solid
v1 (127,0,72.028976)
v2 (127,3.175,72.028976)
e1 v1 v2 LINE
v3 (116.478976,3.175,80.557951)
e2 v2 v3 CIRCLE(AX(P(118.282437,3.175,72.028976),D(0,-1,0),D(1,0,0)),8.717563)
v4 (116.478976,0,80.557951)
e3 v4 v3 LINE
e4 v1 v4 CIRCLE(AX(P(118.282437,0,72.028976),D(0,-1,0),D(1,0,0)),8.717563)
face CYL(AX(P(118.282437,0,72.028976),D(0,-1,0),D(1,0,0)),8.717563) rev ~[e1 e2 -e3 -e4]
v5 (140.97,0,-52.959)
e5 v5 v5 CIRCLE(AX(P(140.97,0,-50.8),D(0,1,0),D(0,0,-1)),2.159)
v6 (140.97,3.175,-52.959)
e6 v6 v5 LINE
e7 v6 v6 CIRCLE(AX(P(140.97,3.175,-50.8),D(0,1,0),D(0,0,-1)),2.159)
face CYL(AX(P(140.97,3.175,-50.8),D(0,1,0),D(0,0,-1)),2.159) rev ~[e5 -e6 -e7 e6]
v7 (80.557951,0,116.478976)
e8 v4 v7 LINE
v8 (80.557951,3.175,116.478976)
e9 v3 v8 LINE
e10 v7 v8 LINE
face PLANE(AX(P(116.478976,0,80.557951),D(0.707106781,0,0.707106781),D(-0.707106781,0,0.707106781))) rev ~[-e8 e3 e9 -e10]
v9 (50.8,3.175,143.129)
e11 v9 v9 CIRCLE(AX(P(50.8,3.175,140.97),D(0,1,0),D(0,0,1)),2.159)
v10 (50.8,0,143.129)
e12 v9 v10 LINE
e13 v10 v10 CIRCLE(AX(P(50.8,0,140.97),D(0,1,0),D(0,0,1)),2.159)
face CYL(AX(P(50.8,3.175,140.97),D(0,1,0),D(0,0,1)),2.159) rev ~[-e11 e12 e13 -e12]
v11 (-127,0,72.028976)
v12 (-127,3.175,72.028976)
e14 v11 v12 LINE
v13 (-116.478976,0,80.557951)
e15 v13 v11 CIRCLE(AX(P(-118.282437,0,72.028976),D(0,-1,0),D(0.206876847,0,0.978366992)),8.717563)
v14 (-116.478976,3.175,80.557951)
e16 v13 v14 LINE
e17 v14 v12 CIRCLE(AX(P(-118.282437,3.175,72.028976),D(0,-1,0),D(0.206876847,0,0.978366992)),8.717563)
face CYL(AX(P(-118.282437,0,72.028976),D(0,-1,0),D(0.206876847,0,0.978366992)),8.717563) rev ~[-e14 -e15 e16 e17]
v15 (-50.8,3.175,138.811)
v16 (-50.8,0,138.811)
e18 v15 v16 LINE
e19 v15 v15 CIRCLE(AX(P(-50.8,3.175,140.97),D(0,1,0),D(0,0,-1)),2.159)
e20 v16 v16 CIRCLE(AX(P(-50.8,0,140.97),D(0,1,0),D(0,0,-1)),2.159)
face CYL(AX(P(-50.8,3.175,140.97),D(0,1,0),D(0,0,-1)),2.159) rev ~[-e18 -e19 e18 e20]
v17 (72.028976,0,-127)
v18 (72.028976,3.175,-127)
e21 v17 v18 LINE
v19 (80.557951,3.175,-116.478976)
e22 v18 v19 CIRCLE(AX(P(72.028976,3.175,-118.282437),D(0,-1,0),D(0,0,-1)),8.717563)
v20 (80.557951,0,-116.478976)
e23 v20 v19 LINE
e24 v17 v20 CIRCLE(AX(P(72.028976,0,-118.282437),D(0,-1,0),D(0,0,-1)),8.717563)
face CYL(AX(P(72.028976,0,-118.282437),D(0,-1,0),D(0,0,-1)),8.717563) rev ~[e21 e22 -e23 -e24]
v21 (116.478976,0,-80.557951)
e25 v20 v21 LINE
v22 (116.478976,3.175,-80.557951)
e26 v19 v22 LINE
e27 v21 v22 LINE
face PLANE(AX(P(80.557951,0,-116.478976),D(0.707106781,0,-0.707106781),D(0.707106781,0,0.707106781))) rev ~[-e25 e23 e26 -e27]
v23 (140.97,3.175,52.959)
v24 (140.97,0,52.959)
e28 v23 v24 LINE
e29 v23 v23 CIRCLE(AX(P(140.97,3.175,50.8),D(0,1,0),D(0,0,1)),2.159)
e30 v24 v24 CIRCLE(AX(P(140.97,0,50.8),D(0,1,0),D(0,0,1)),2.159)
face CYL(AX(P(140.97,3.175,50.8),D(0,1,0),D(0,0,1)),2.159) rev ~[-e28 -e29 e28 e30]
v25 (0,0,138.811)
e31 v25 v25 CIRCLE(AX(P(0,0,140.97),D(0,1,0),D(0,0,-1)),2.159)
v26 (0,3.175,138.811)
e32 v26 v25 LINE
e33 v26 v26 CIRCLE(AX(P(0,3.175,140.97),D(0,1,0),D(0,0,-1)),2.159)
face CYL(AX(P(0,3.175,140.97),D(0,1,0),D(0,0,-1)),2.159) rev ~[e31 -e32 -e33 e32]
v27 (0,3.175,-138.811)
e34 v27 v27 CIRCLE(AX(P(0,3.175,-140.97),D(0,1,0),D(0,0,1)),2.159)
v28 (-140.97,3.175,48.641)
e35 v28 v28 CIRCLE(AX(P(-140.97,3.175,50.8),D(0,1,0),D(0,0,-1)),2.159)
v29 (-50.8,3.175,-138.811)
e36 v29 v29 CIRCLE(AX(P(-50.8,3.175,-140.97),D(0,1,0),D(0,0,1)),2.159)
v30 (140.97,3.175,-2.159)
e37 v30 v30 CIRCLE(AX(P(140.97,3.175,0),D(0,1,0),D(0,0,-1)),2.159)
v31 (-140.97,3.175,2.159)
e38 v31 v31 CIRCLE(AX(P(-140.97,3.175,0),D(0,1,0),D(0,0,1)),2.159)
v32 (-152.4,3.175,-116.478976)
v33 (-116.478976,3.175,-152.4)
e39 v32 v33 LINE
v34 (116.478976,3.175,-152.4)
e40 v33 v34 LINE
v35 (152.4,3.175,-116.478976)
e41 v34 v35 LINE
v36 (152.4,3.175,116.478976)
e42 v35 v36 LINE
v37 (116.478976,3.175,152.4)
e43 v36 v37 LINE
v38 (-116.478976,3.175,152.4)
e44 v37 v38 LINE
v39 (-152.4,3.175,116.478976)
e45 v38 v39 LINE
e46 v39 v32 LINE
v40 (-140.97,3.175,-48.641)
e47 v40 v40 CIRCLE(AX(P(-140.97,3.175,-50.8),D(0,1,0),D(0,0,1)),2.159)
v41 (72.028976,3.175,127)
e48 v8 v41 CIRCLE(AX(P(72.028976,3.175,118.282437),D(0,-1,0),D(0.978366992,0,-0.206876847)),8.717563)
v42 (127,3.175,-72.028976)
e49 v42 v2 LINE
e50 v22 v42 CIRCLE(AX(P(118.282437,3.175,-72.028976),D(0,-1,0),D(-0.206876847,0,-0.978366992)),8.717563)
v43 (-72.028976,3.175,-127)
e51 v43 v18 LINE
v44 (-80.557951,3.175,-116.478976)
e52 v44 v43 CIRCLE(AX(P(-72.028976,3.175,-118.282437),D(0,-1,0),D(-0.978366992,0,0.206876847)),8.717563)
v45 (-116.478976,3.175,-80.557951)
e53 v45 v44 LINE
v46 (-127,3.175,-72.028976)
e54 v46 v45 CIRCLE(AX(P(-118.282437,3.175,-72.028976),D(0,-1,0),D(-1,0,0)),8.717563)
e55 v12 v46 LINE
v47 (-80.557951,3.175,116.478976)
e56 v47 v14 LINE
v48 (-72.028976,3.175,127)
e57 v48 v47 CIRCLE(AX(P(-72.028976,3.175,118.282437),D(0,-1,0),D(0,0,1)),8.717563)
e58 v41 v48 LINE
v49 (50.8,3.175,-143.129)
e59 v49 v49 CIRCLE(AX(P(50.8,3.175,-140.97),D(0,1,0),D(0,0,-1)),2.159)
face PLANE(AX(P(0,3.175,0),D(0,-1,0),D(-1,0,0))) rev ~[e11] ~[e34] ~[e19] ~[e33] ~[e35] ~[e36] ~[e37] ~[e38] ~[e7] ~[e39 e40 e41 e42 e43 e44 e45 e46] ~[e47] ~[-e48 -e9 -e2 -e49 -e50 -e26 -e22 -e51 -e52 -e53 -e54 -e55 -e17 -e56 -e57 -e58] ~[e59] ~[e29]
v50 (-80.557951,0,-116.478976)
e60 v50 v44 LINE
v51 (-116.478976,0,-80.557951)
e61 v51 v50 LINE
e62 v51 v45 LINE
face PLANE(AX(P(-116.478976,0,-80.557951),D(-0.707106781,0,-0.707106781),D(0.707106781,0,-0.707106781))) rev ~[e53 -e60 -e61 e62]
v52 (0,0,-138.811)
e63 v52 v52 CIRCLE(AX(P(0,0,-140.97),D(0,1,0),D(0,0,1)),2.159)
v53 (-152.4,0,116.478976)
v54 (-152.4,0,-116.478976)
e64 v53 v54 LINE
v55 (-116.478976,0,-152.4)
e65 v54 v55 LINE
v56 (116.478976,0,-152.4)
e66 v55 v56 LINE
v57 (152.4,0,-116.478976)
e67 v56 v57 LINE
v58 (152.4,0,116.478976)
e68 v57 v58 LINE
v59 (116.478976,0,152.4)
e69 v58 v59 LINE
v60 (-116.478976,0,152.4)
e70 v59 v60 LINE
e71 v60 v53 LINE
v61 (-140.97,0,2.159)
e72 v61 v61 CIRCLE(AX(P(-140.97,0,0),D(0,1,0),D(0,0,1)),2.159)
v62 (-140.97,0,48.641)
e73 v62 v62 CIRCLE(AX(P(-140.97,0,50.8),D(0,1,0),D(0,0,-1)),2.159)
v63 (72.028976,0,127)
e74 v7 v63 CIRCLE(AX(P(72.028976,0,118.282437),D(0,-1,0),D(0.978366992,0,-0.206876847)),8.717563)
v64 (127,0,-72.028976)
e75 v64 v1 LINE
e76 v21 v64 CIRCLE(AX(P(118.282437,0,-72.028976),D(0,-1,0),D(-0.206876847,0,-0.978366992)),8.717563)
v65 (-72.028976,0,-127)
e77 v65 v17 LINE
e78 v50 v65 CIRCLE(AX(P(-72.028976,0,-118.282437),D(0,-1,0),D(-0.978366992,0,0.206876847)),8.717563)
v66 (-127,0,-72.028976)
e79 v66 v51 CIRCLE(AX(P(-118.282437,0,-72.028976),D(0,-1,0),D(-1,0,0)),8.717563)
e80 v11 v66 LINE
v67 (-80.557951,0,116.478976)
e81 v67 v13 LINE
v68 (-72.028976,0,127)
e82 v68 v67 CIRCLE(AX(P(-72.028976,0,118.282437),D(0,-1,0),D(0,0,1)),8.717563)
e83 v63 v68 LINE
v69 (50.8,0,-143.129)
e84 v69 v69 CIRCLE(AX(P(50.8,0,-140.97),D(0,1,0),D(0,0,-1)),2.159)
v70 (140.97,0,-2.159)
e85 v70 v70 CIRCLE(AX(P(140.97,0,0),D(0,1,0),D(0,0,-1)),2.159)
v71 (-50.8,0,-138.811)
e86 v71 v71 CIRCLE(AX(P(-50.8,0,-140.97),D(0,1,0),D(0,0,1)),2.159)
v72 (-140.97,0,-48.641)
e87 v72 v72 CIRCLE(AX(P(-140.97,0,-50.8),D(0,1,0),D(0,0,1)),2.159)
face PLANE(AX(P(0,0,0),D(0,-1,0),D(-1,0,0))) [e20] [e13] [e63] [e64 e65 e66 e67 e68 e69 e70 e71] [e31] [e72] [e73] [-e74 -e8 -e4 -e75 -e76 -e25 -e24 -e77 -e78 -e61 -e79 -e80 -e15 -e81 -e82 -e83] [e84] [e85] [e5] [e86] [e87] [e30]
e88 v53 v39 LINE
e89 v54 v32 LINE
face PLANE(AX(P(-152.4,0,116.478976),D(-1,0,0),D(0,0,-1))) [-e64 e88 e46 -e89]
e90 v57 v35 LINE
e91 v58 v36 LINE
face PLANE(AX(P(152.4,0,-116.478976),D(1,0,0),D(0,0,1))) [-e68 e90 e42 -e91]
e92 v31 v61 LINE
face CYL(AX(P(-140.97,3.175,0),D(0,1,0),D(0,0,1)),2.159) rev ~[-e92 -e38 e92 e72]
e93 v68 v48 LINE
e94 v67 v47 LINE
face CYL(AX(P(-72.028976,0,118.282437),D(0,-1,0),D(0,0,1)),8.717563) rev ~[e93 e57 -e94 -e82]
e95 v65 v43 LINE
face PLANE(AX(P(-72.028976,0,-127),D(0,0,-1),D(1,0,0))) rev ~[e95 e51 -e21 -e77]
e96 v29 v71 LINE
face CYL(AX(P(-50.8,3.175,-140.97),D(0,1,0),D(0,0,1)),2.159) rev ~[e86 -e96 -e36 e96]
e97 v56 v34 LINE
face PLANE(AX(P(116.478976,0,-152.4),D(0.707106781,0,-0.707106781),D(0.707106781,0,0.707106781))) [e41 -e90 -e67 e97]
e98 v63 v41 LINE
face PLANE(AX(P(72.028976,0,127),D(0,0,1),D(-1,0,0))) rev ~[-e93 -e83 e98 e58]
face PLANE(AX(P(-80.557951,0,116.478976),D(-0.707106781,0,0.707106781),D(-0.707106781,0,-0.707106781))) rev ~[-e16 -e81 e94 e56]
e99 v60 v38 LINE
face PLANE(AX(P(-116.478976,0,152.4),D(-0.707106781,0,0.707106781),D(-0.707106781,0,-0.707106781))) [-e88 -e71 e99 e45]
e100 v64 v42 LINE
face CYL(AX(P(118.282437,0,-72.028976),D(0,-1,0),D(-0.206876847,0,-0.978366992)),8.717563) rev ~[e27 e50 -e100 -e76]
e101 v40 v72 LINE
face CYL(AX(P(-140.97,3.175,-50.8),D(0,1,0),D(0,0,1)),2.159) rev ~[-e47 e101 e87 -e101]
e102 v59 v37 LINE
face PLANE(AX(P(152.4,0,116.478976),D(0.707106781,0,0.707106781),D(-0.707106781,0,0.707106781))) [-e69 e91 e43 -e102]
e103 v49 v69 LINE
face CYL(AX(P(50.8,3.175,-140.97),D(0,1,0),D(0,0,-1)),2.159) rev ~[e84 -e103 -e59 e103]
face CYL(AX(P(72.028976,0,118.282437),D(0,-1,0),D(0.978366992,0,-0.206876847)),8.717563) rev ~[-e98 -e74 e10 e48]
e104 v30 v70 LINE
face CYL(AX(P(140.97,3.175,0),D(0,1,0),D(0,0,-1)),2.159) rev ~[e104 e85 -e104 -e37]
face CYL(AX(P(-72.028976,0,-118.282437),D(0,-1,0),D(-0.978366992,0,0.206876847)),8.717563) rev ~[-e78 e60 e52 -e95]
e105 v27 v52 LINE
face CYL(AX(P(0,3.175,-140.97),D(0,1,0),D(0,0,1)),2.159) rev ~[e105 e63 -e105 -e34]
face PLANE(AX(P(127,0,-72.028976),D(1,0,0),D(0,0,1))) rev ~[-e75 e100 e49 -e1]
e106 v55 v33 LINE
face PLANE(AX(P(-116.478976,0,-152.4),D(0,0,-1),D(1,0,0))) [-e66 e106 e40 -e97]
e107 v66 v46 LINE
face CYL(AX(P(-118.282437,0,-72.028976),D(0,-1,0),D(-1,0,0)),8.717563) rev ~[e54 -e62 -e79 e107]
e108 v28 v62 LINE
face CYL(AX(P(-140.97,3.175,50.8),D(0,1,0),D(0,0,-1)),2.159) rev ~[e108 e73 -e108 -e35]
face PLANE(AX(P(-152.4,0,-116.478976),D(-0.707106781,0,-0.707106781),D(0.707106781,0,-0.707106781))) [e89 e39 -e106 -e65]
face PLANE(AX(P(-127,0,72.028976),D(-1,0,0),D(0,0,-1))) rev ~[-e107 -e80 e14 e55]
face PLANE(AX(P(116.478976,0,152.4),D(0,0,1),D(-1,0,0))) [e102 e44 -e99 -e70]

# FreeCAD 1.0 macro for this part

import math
import FreeCAD as App
import Part
import Sketcher
Q = App.Units.Quantity


def add_polygon(sketch, points):
    """Adds a closed chain of lines whose ends are joined by coincident constraints."""
    first, n = sketch.GeometryCount, len(points)
    for a, b in zip(points, points[1:] + points[:1]):
        sketch.addGeometry(Part.LineSegment(App.Vector(*a, 0), App.Vector(*b, 0)), False)
    for i in range(n):
        sketch.addConstraint(Sketcher.Constraint("Coincident", first + i, 2, first + (i + 1) % n, 1))

doc = App.newDocument("Part")
params = doc.addObject("Spreadsheet::Sheet", "Params")
for row, (alias, value) in enumerate([
    ("sketch1_length", "2 in"),
    ("pad1_length", "0.125 in"),
    ("sketch2_diameter", "0.17 in"),
], start=1):
    params.set(f"A{row}", alias)
    params.set(f"B{row}", "=" + value)
    params.setAlias(f"B{row}", alias)

body = doc.addObject("PartDesign::Body", "Body")

sketch1 = body.newObject("Sketcher::SketchObject", "Sketch")
sketch1.AttachmentSupport = (doc.getObject("XZ_Plane"), [""])
sketch1.MapMode = "FlatFace"
add_polygon(sketch1, [(-116, -152), (-152, -116), (-152, 116), (-116, 152), (116, 152), (152, 116), (152, -116), (116, -152)])
sketch1.addGeometry(Part.LineSegment(App.Vector(-116, -81, 0), App.Vector(-81, -116, 0)), False)
sketch1.addGeometry(Part.ArcOfCircle(Part.Circle(App.Vector(-72, -118, 0), App.Vector(0, 0, 1), 9), math.radians(168), math.radians(270)), False)
sketch1.addGeometry(Part.LineSegment(App.Vector(-72, -127, 0), App.Vector(72, -127, 0)), False)
sketch1.addGeometry(Part.ArcOfCircle(Part.Circle(App.Vector(72, -118, 0), App.Vector(0, 0, 1), 9), math.radians(-90), math.radians(12)), False)
sketch1.addGeometry(Part.LineSegment(App.Vector(81, -116, 0), App.Vector(116, -81, 0)), False)
sketch1.addGeometry(Part.ArcOfCircle(Part.Circle(App.Vector(118, -72, 0), App.Vector(0, 0, 1), 9), math.radians(-102), math.radians(0)), False)
sketch1.addGeometry(Part.LineSegment(App.Vector(127, -72, 0), App.Vector(127, 72, 0)), False)
sketch1.addGeometry(Part.ArcOfCircle(Part.Circle(App.Vector(118, 72, 0), App.Vector(0, 0, 1), 9), math.radians(0), math.radians(102)), False)
sketch1.addGeometry(Part.LineSegment(App.Vector(116, 81, 0), App.Vector(81, 116, 0)), False)
sketch1.addGeometry(Part.ArcOfCircle(Part.Circle(App.Vector(72, 118, 0), App.Vector(0, 0, 1), 9), math.radians(-12), math.radians(90)), False)
sketch1.addGeometry(Part.LineSegment(App.Vector(72, 127, 0), App.Vector(-72, 127, 0)), False)
sketch1.addGeometry(Part.ArcOfCircle(Part.Circle(App.Vector(-72, 118, 0), App.Vector(0, 0, 1), 9), math.radians(90), math.radians(192)), False)
sketch1.addGeometry(Part.LineSegment(App.Vector(-81, 116, 0), App.Vector(-116, 81, 0)), False)
sketch1.addGeometry(Part.ArcOfCircle(Part.Circle(App.Vector(-118, 72, 0), App.Vector(0, 0, 1), 9), math.radians(78), math.radians(180)), False)
sketch1.addGeometry(Part.LineSegment(App.Vector(-127, 72, 0), App.Vector(-127, -72, 0)), False)
sketch1.addGeometry(Part.ArcOfCircle(Part.Circle(App.Vector(-118, -72, 0), App.Vector(0, 0, 1), 9), math.radians(180), math.radians(282)), False)
sketch1.addConstraint(Sketcher.Constraint("Coincident", 8, 2, 9, 1))
sketch1.addConstraint(Sketcher.Constraint("Tangent", 9, 2, 10, 1))
sketch1.addConstraint(Sketcher.Constraint("Tangent", 10, 2, 11, 1))
sketch1.addConstraint(Sketcher.Constraint("Coincident", 11, 2, 12, 1))
sketch1.addConstraint(Sketcher.Constraint("Coincident", 12, 2, 13, 1))
sketch1.addConstraint(Sketcher.Constraint("Tangent", 13, 2, 14, 1))
sketch1.addConstraint(Sketcher.Constraint("Tangent", 14, 2, 15, 1))
sketch1.addConstraint(Sketcher.Constraint("Coincident", 15, 2, 16, 1))
sketch1.addConstraint(Sketcher.Constraint("Coincident", 16, 2, 17, 1))
sketch1.addConstraint(Sketcher.Constraint("Tangent", 17, 2, 18, 1))
sketch1.addConstraint(Sketcher.Constraint("Tangent", 18, 2, 19, 1))
sketch1.addConstraint(Sketcher.Constraint("Coincident", 19, 2, 20, 1))
sketch1.addConstraint(Sketcher.Constraint("Coincident", 20, 2, 21, 1))
sketch1.addConstraint(Sketcher.Constraint("Tangent", 21, 2, 22, 1))
sketch1.addConstraint(Sketcher.Constraint("Tangent", 22, 2, 23, 1))
sketch1.addConstraint(Sketcher.Constraint("Coincident", 23, 2, 8, 1))
sketch1.addConstraint(Sketcher.Constraint("Vertical", 1))
sketch1.addConstraint(Sketcher.Constraint("Horizontal", 3))
sketch1.addConstraint(Sketcher.Constraint("Vertical", 5))
sketch1.addConstraint(Sketcher.Constraint("Horizontal", 7))
sketch1.addConstraint(Sketcher.Constraint("Horizontal", 10))
sketch1.addConstraint(Sketcher.Constraint("Vertical", 14))
sketch1.addConstraint(Sketcher.Constraint("Horizontal", 18))
sketch1.addConstraint(Sketcher.Constraint("Vertical", 22))
sketch1.addConstraint(Sketcher.Constraint("Equal", 9, 11))
sketch1.addConstraint(Sketcher.Constraint("Equal", 11, 13))
sketch1.addConstraint(Sketcher.Constraint("Equal", 13, 15))
sketch1.addConstraint(Sketcher.Constraint("Equal", 15, 17))
sketch1.addConstraint(Sketcher.Constraint("Equal", 17, 19))
sketch1.addConstraint(Sketcher.Constraint("Equal", 19, 21))
sketch1.addConstraint(Sketcher.Constraint("Equal", 21, 23))
sketch1.addConstraint(Sketcher.Constraint("Symmetric", 9, 3, 17, 3, -1, 1))
sketch1.addConstraint(Sketcher.Constraint("Symmetric", 13, 3, 21, 3, -1, 1))
sketch1.addConstraint(Sketcher.Constraint("Symmetric", 0, 2, 4, 2, -1, 1))
sketch1.addConstraint(Sketcher.Constraint("Symmetric", 2, 2, 6, 2, -1, 1))
sketch1.addConstraint(Sketcher.Constraint("Symmetric", 11, 2, 19, 2, -1, 1))
sketch1.addConstraint(Sketcher.Constraint("Symmetric", 15, 2, 23, 2, -1, 1))
sketch1.addConstraint(Sketcher.Constraint("Symmetric", 8, 2, 11, 2, -2))
sketch1.addConstraint(Sketcher.Constraint("Symmetric", 15, 2, 20, 2, -2))
sketch1.addConstraint(Sketcher.Constraint("Perpendicular", 0, 2))
sketch1.addConstraint(Sketcher.Constraint("Perpendicular", 2, 4))
sketch1.addConstraint(Sketcher.Constraint("Perpendicular", 4, 6))
sketch1.addConstraint(Sketcher.Constraint("Perpendicular", 6, 8))
sketch1.addConstraint(Sketcher.Constraint("Perpendicular", 8, 12))
sketch1.addConstraint(Sketcher.Constraint("Perpendicular", 12, 16))
sketch1.addConstraint(Sketcher.Constraint("Perpendicular", 16, 20))
sketch1.addConstraint(Sketcher.Constraint("Horizontal", 1, 2, 4, 2))
sketch1.addConstraint(Sketcher.Constraint("Horizontal", 5, 2, 8, 2))
sketch1.addConstraint(Sketcher.Constraint("Vertical", 6, 2, 12, 2))
sketch1.addConstraint(Sketcher.Constraint("Equal", 7, 1))
sketch1.addConstraint(Sketcher.Constraint("Equal", 18, 14))
sketch1.addConstraint(Sketcher.Constraint("Equal", 6, 8))
sketch1.addConstraint(Sketcher.Constraint("Distance", 0, Q("2 in")))
sketch1.addConstraint(Sketcher.Constraint("DistanceX", 0, 2, -1, 1, Q("6 in")))
sketch1.addConstraint(Sketcher.Constraint("DistanceY", 9, 2, -1, 1, Q("5 in")))
sketch1.addConstraint(Sketcher.Constraint("DistanceY", 0, 2, 23, 3, Q("1.75 in")))
sketch1.setExpression("Constraints[60]", "Params.sketch1_length")
pad1 = body.newObject("PartDesign::Pad", "Pad")
pad1.Profile = sketch1
pad1.setExpression("Length", "Params.pad1_length")
pad1.Reversed = True

sketch2 = body.newObject("Sketcher::SketchObject", "Sketch001")
sketch2.AttachmentSupport = (doc.getObject("XZ_Plane"), [""])
sketch2.MapMode = "FlatFace"
sketch2.AttachmentOffset = App.Placement(App.Vector(0, 0, -0.125 * 25.4), App.Rotation())
sketch2.addGeometry(Part.Circle(App.Vector(0, -141, 0), App.Vector(0, 0, 1), 2.2), False)
sketch2.addGeometry(Part.Circle(App.Vector(-50.8, -141, 0), App.Vector(0, 0, 1), 2.2), False)
sketch2.addGeometry(Part.Circle(App.Vector(-141, -50.8, 0), App.Vector(0, 0, 1), 2.2), False)
sketch2.addGeometry(Part.Circle(App.Vector(-141, 0, 0), App.Vector(0, 0, 1), 2.2), False)
sketch2.addGeometry(Part.Circle(App.Vector(141, 0, 0), App.Vector(0, 0, 1), 2.2), False)
sketch2.addGeometry(Part.Circle(App.Vector(141, -50.8, 0), App.Vector(0, 0, 1), 2.2), False)
sketch2.addGeometry(Part.Circle(App.Vector(50.8, -141, 0), App.Vector(0, 0, 1), 2.2), False)
sketch2.addGeometry(Part.Circle(App.Vector(50.8, 141, 0), App.Vector(0, 0, 1), 2.2), False)
sketch2.addGeometry(Part.Circle(App.Vector(141, 50.8, 0), App.Vector(0, 0, 1), 2.2), False)
sketch2.addGeometry(Part.Circle(App.Vector(-50.8, 141, 0), App.Vector(0, 0, 1), 2.2), False)
sketch2.addGeometry(Part.Circle(App.Vector(0, 141, 0), App.Vector(0, 0, 1), 2.2), False)
sketch2.addGeometry(Part.Circle(App.Vector(-141, 50.8, 0), App.Vector(0, 0, 1), 2.2), False)
sketch2.addConstraint(Sketcher.Constraint("Equal", 0, 1))
sketch2.addConstraint(Sketcher.Constraint("Equal", 1, 2))
sketch2.addConstraint(Sketcher.Constraint("Equal", 2, 3))
sketch2.addConstraint(Sketcher.Constraint("Equal", 3, 4))
sketch2.addConstraint(Sketcher.Constraint("Equal", 4, 5))
sketch2.addConstraint(Sketcher.Constraint("Equal", 5, 6))
sketch2.addConstraint(Sketcher.Constraint("Equal", 6, 7))
sketch2.addConstraint(Sketcher.Constraint("Equal", 7, 8))
sketch2.addConstraint(Sketcher.Constraint("Equal", 8, 9))
sketch2.addConstraint(Sketcher.Constraint("Equal", 9, 10))
sketch2.addConstraint(Sketcher.Constraint("Equal", 10, 11))
sketch2.addConstraint(Sketcher.Constraint("Symmetric", 3, 3, 4, 3, -1, 1))
sketch2.addConstraint(Sketcher.Constraint("Symmetric", 1, 3, 7, 3, -1, 1))
sketch2.addConstraint(Sketcher.Constraint("Symmetric", 2, 3, 8, 3, -1, 1))
sketch2.addConstraint(Sketcher.Constraint("Symmetric", 6, 3, 9, 3, -1, 1))
sketch2.addConstraint(Sketcher.Constraint("Symmetric", 0, 3, 10, 3, -1, 1))
sketch2.addConstraint(Sketcher.Constraint("Symmetric", 5, 3, 11, 3, -1, 1))
sketch2.addConstraint(Sketcher.Constraint("Symmetric", 2, 3, 5, 3, -2))
sketch2.addConstraint(Sketcher.Constraint("Symmetric", 1, 3, 6, 3, -2))
sketch2.addConstraint(Sketcher.Constraint("PointOnObject", 0, 3, -2))
sketch2.addConstraint(Sketcher.Constraint("PointOnObject", 3, 3, -1))
sketch2.addConstraint(Sketcher.Constraint("Horizontal", 0, 3, 1, 3))
sketch2.addConstraint(Sketcher.Constraint("Vertical", 2, 3, 3, 3))
sketch2.addConstraint(Sketcher.Constraint("Diameter", 0, Q("0.17 in")))
sketch2.addConstraint(Sketcher.Constraint("DistanceX", 1, 3, -1, 1, Q("2 in")))
sketch2.addConstraint(Sketcher.Constraint("DistanceY", 2, 3, -1, 1, Q("2 in")))
sketch2.addConstraint(Sketcher.Constraint("DistanceX", 3, 3, 4, 3, Q("11.1 in")))
sketch2.addConstraint(Sketcher.Constraint("DistanceY", 6, 3, 7, 3, Q("11.1 in")))
sketch2.setExpression("Constraints[23]", "Params.sketch2_diameter")
pocket1 = body.newObject("PartDesign::Pocket", "Pocket")
pocket1.Profile = sketch2
pocket1.Type = "ThroughAll"
pocket1.Reversed = True

doc.recompute()
